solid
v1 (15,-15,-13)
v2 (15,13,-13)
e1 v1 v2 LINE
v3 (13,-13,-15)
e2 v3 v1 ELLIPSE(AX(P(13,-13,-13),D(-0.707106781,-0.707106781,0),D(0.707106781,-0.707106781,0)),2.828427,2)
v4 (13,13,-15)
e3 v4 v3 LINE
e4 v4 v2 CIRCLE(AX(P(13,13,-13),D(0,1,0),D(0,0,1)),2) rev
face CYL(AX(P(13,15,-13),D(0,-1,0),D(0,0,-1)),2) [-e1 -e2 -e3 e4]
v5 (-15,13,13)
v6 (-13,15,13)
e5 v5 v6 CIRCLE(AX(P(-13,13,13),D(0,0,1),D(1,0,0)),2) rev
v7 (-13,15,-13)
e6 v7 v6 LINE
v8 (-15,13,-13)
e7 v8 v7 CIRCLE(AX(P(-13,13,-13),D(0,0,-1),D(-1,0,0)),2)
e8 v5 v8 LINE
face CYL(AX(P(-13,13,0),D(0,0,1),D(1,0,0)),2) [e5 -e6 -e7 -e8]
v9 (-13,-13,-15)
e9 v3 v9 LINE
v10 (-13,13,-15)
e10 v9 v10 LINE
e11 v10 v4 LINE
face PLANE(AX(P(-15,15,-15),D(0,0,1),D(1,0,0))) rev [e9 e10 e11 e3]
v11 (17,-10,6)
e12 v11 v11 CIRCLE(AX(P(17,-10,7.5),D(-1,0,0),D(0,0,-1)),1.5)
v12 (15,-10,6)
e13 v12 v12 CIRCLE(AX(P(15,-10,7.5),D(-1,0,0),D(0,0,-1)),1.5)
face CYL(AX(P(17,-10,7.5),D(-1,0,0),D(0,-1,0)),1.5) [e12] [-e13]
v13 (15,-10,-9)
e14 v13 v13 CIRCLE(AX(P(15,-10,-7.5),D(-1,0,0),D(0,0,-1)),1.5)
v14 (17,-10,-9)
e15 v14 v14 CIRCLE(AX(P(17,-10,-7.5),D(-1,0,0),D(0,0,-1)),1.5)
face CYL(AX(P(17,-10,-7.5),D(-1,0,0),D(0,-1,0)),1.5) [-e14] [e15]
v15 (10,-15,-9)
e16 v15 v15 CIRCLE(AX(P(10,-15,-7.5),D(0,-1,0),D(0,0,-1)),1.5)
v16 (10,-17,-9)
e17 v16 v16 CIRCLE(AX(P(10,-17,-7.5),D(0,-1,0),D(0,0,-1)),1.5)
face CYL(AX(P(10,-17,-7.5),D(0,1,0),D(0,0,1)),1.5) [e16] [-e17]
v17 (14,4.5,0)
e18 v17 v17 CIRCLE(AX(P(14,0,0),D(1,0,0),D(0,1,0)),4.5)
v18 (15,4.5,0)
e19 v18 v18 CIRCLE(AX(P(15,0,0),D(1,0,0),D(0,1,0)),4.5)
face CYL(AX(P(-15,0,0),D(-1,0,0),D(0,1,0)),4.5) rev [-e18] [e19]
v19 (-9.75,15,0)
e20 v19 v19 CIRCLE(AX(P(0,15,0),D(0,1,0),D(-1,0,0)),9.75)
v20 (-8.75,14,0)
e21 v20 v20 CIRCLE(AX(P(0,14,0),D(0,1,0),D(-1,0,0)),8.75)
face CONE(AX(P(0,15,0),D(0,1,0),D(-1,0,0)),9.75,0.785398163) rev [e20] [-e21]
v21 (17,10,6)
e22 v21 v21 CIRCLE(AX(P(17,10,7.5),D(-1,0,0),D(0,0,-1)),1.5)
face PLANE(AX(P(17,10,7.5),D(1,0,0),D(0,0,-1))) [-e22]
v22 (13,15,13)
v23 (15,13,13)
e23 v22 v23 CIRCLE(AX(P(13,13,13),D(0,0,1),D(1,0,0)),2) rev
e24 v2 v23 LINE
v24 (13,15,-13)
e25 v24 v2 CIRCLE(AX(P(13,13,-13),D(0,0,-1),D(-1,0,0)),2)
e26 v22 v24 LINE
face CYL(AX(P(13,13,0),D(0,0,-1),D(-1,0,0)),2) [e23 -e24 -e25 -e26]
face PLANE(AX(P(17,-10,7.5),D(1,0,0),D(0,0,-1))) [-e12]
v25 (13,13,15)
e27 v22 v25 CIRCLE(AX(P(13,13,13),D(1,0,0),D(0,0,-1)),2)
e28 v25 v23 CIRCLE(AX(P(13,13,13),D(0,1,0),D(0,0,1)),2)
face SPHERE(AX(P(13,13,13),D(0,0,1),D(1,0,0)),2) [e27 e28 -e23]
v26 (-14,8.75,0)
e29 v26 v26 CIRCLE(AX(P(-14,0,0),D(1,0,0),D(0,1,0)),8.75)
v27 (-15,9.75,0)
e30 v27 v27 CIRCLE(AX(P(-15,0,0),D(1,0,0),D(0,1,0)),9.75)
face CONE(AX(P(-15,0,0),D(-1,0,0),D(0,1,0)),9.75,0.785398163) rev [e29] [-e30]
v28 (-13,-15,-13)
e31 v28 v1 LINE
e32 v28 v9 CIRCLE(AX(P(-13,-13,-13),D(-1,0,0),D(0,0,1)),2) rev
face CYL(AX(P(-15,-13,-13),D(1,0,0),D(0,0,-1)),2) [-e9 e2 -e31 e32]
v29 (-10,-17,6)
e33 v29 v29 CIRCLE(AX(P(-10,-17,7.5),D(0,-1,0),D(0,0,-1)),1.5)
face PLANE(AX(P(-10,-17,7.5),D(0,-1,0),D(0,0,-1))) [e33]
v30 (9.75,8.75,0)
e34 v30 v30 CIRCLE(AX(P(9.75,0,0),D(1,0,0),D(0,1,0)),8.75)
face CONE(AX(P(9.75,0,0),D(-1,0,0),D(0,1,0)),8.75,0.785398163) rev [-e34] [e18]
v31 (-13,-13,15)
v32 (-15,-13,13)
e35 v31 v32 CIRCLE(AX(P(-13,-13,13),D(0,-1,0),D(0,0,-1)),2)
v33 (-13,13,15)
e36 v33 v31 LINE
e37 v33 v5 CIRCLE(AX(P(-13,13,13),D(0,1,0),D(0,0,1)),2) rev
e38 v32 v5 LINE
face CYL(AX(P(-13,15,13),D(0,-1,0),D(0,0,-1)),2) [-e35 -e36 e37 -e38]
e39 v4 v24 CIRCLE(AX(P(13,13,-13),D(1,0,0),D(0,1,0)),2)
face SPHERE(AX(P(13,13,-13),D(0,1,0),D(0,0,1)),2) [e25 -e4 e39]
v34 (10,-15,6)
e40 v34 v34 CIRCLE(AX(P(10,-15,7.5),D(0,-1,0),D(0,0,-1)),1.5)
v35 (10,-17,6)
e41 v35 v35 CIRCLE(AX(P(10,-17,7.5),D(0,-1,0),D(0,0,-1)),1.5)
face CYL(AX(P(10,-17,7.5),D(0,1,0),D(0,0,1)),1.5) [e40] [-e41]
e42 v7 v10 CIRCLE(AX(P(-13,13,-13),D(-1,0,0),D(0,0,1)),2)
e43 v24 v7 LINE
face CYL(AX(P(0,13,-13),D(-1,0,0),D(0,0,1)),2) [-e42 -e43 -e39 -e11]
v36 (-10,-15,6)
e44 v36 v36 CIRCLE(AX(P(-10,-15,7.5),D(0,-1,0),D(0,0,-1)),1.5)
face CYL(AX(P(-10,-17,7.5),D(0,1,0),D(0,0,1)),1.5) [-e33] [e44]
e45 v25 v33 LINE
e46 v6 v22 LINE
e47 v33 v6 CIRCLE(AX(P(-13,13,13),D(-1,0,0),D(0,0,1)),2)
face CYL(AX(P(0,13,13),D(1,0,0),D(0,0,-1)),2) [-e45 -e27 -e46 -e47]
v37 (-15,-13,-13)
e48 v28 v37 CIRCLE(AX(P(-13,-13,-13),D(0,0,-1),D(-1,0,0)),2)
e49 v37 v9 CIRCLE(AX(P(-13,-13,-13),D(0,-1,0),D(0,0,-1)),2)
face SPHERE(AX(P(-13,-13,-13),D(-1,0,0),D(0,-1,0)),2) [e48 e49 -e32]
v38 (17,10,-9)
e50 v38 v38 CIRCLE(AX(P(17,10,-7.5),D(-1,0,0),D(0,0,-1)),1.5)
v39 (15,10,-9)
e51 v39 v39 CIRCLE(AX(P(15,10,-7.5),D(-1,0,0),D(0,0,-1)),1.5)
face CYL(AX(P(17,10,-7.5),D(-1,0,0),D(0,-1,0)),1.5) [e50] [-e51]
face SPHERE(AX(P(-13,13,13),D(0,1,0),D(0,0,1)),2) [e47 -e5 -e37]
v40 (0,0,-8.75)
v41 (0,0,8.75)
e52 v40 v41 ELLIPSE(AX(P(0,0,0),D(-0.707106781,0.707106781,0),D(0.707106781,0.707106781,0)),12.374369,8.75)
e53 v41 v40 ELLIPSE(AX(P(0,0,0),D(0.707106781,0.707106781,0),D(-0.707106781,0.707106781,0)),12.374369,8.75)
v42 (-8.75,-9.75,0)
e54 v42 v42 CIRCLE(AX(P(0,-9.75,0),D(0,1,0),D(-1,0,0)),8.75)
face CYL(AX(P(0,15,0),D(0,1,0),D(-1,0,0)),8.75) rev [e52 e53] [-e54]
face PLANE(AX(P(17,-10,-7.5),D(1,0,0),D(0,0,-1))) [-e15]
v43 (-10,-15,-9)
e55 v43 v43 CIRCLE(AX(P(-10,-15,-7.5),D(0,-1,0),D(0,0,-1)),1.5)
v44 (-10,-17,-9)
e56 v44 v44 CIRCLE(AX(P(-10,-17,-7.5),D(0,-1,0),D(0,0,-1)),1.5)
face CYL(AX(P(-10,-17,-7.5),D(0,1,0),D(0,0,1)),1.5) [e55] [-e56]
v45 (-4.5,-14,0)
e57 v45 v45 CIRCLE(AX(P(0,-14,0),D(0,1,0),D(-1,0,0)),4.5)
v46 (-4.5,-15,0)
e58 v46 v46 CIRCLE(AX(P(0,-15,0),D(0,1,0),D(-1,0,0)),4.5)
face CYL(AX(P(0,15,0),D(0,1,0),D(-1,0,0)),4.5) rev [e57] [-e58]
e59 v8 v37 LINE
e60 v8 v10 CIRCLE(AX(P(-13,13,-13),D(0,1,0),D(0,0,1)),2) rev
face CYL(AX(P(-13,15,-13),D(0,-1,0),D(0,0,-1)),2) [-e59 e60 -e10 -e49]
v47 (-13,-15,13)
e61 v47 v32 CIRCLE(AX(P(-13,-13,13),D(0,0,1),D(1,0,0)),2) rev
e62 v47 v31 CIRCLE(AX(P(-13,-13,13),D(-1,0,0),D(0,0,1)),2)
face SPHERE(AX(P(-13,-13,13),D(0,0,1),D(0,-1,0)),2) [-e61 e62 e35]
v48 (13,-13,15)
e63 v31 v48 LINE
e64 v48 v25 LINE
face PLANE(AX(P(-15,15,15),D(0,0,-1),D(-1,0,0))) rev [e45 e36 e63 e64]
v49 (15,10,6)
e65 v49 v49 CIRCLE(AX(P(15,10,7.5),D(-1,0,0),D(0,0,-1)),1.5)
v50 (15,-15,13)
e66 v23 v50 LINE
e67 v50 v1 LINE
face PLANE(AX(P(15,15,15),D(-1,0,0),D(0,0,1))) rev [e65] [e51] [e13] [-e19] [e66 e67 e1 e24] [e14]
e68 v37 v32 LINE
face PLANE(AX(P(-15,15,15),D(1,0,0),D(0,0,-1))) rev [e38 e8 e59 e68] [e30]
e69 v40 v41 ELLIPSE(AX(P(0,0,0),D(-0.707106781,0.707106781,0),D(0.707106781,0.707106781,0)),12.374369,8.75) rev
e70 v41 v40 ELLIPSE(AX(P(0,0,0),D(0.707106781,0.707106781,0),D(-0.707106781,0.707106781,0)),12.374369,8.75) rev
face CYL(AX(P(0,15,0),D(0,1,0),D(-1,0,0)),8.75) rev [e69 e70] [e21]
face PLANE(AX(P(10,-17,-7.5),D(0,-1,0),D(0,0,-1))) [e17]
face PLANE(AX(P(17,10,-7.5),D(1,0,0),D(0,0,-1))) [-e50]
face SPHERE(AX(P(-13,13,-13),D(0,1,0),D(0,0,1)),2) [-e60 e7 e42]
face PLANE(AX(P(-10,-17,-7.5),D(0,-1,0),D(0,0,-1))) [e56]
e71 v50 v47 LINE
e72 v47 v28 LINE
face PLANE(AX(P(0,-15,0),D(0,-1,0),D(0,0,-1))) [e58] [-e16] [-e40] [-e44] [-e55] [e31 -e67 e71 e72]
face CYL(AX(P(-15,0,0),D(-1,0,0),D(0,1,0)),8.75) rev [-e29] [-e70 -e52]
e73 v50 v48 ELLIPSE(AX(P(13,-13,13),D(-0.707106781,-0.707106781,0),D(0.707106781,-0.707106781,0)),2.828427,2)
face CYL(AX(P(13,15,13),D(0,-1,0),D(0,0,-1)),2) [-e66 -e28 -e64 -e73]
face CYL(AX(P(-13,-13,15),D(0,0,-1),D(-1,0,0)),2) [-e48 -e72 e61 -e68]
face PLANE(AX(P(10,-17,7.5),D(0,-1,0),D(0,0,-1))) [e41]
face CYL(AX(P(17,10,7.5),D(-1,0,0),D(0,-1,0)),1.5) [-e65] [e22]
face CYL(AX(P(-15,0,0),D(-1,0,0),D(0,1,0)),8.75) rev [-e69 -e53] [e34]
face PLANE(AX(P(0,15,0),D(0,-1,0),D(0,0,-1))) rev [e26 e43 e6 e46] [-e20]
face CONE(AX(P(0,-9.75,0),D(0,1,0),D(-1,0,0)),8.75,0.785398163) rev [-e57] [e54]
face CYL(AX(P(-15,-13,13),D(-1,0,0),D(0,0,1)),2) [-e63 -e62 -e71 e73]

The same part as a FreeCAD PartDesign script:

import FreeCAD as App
import Part
import Sketcher
Q = App.Units.Quantity


def edges_at(feature, points):
    """Names of the edges that pass closest to the given points."""
    edges = feature.Shape.Edges
    near = lambda p: min(range(len(edges)), key=lambda i: edges[i].distToShape(Part.Vertex(*p))[0])
    return sorted({f"Edge{near(p) + 1}" for p in points})


def add_polygon(sketch, points):
    """Adds a closed chain of lines whose ends are joined by coincident constraints."""
    first, n = sketch.GeometryCount, len(points)
    for a, b in zip(points, points[1:] + points[:1]):
        sketch.addGeometry(Part.LineSegment(App.Vector(*a, 0), App.Vector(*b, 0)), False)
    for i in range(n):
        sketch.addConstraint(Sketcher.Constraint("Coincident", first + i, 2, first + (i + 1) % n, 1))

doc = App.newDocument("Part")
body = doc.addObject("PartDesign::Body", "Body")

# Sketch on XZ plane
sketch1 = body.newObject("Sketcher::SketchObject", "Sketch")
sketch1.AttachmentSupport = (doc.getObject("XZ_Plane"), [""])
sketch1.MapMode = "FlatFace"
add_polygon(sketch1, [(-15, -15), (-15, 15), (15, 15), (15, -15)])  # lines 0-3
sketch1.addConstraint([
    Sketcher.Constraint("Vertical", 0),
    Sketcher.Constraint("Horizontal", 1),
    Sketcher.Constraint("Vertical", 2),
    Sketcher.Constraint("Horizontal", 3),
    Sketcher.Constraint("Symmetric", 0, 2, 2, 2, -1, 1),
    Sketcher.Constraint("Equal", 3, 0),
    Sketcher.Constraint("DistanceX", 1, 1, 1, 2, 30.0),
])
pad1 = body.newObject("PartDesign::Pad", "Pad")
pad1.Profile = sketch1
pad1.Length = 30
pad1.Midplane = True

# Sketch on XY plane
sketch2 = body.newObject("Sketcher::SketchObject", "Sketch001")
sketch2.AttachmentSupport = (doc.getObject("XY_Plane"), [""])
sketch2.MapMode = "FlatFace"
add_polygon(sketch2, [(-4.5, -14), (-4.5, -15), (0, -15), (0, 15), (-9.8, 15), (-8.8, 14), (-8.8, -9.8)])  # lines 0-6
sketch2.addConstraint([
    Sketcher.Constraint("Vertical", 0),
    Sketcher.Constraint("Horizontal", 1),
    Sketcher.Constraint("Vertical", 2),
    Sketcher.Constraint("Horizontal", 3),
    Sketcher.Constraint("Vertical", 5),
    Sketcher.Constraint("Symmetric", 1, 2, 2, 2, -1, 1),
    Sketcher.Constraint("Parallel", 4, 6),
    Sketcher.Constraint("DistanceY", 0, 2, 0, 1, 1.0),
    Sketcher.Constraint("DistanceY", 2, 1, 2, 2, 30.0),
    Sketcher.Constraint("Angle", 4, Q("-45 deg")),
    Sketcher.Constraint("DistanceX", 1, 1, 1, 2, 4.5),
    Sketcher.Constraint("DistanceY", -1, 1, 4, 2, 14.0),
    Sketcher.Constraint("DistanceX", 3, 2, 3, 1, 9.75),
])
groove = body.newObject("PartDesign::Groove", "Groove")
groove.Profile = sketch2
groove.ReferenceAxis = (sketch2, ["V_Axis"])
groove.Angle = 360

# Sketch on XZ plane
sketch3 = body.newObject("Sketcher::SketchObject", "Sketch002")
sketch3.AttachmentSupport = (doc.getObject("XZ_Plane"), [""])
sketch3.MapMode = "FlatFace"
sketch3.AttachmentOffset = App.Placement(App.Vector(0, 0, 15), App.Rotation())
sketch3.addGeometry([
    Part.Circle(App.Vector(-10, 7.5, 0), App.Vector(0, 0, 1), 1.5),
    Part.Circle(App.Vector(-10, -7.5, 0), App.Vector(0, 0, 1), 1.5),
    Part.Circle(App.Vector(10, -7.5, 0), App.Vector(0, 0, 1), 1.5),
    Part.Circle(App.Vector(10, 7.5, 0), App.Vector(0, 0, 1), 1.5),
], False)
sketch3.addConstraint([
    Sketcher.Constraint("Equal", 0, 1),
    Sketcher.Constraint("Equal", 1, 2),
    Sketcher.Constraint("Equal", 2, 3),
    Sketcher.Constraint("Symmetric", 0, 3, 2, 3, -1, 1),
    Sketcher.Constraint("Symmetric", 1, 3, 3, 3, -1, 1),
    Sketcher.Constraint("Symmetric", 1, 3, 2, 3, -2),
    Sketcher.Constraint("Diameter", 0, 3.0),
    Sketcher.Constraint("DistanceX", 0, 3, -1, 1, 10.0),
    Sketcher.Constraint("DistanceY", 1, 3, 0, 3, 15.0),
])
pad2 = body.newObject("PartDesign::Pad", "Pad001")
pad2.Profile = sketch3
pad2.Length = 2
doc.recompute()

datumplane = body.newObject("PartDesign::Plane", "DatumPlane")
datumplane.Placement = App.Placement(App.Vector(0, 0, 0), App.Rotation(App.Vector(0.707106781, -0.707106781, 0), App.Vector(0, 0, -1), App.Vector(0.707106781, 0.707106781, 0), "ZXY"))
mirrored = body.newObject("PartDesign::Mirrored", "Mirrored")
mirrored.Originals = [groove, pad2]
mirrored.MirrorPlane = (datumplane, [""])
body.Tip = mirrored
doc.recompute()

fillet = body.newObject("PartDesign::Fillet", "Fillet")
fillet.Base = (mirrored, edges_at(mirrored, [
    (-15, 15, 0),
    (0, 15, 15),
    (15, 15, 0),
    (0, -15, 15),
    (-15, -15, 0),
    (0, -15, -15),
    (15, 0, 15),
    (-15, 0, 15),
    (-15, 0, -15),
    (15, 0, -15),
    (0, 15, -15),
]))
fillet.Radius = 2

doc.recompute()
